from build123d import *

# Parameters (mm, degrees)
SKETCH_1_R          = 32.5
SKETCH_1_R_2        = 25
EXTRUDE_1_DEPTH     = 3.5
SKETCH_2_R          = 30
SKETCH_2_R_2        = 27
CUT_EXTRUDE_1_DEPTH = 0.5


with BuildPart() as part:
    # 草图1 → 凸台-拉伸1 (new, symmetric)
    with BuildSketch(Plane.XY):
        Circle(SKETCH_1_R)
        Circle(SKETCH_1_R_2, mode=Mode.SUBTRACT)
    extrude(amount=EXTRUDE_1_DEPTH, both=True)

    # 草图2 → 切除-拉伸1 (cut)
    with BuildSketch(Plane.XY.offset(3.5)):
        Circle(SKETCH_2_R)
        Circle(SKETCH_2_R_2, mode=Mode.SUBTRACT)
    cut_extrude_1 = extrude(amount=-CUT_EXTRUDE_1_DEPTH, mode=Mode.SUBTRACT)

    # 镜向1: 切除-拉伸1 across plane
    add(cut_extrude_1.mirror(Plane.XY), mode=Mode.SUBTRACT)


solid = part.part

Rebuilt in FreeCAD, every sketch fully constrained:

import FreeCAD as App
import Part
import Sketcher
from FreeCAD import Vector
Q = App.Units.Quantity

doc = App.newDocument("Part")
body = doc.addObject("PartDesign::Body", "Body")

sketch1 = body.newObject("Sketcher::SketchObject", "Sketch")
sketch1.AttachmentSupport = (doc.getObject("XY_Plane"), [""])
sketch1.MapMode = "FlatFace"
sketch1.addGeometry([
    Part.Circle(Vector(0, 0, 0), Vector(0, 0, 1), 32.5),
    Part.Circle(Vector(0, 0, 0), Vector(0, 0, 1), 25),
], False)
sketch1.addConstraint([
    Sketcher.Constraint("Coincident", 0, 3, -1, 1),
    Sketcher.Constraint("Coincident", 1, 3, -1, 1),
    Sketcher.Constraint("Diameter", 0, Q("65 mm")),
    Sketcher.Constraint("Diameter", 1, Q("50 mm")),
])
pad1 = body.newObject("PartDesign::Pad", "Pad")
pad1.Profile = sketch1
pad1.Length = 7
pad1.Midplane = True

sketch2 = body.newObject("Sketcher::SketchObject", "Sketch001")
sketch2.AttachmentSupport = (doc.getObject("XY_Plane"), [""])
sketch2.MapMode = "FlatFace"
sketch2.AttachmentOffset = App.Placement(Vector(0, 0, 3.5), App.Rotation())
sketch2.addGeometry([
    Part.Circle(Vector(0, 0, 0), Vector(0, 0, 1), 30),
    Part.Circle(Vector(0, 0, 0), Vector(0, 0, 1), 27),
], False)
sketch2.addConstraint([
    Sketcher.Constraint("Coincident", 0, 3, -1, 1),
    Sketcher.Constraint("Coincident", 1, 3, -1, 1),
    Sketcher.Constraint("Diameter", 0, Q("60 mm")),
    Sketcher.Constraint("Diameter", 1, Q("54 mm")),
])
pocket1 = body.newObject("PartDesign::Pocket", "Pocket")
pocket1.Profile = sketch2
pocket1.Length = 0.5
doc.recompute()

mirrored = body.newObject("PartDesign::Mirrored", "Mirrored")
mirrored.Originals = [pocket1]
mirrored.MirrorPlane = (doc.getObject("XY_Plane"), [""])
body.Tip = mirrored

doc.recompute()
